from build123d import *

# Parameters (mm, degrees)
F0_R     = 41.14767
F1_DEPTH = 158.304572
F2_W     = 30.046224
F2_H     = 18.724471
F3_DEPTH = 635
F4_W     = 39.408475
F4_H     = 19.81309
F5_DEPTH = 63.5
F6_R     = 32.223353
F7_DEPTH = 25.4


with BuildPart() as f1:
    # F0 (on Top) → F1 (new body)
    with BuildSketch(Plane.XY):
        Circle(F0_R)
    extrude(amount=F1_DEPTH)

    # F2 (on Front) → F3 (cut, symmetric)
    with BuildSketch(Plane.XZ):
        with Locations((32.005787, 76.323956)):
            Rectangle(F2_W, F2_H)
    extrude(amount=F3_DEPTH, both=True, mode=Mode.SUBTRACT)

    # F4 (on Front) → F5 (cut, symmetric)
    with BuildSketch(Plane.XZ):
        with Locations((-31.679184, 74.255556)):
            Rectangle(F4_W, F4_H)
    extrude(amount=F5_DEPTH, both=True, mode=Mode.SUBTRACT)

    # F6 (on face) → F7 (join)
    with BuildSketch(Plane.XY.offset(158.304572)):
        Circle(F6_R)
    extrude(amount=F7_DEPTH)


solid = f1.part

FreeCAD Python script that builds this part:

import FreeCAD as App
import Part
import Sketcher

V = App.Vector

doc = App.newDocument("Part")
params = doc.addObject("Spreadsheet::Sheet", "Params")
for row, (alias, value) in enumerate([
    ("pad1_length", "158.304572 mm"),
    ("pocket1_length", "50 in"),
    ("pocket2_length", "5 in"),
    ("pad2_length", "1 in"),
], start=1):
    params.set(f"A{row}", alias)
    params.set(f"B{row}", "=" + value)
    params.setAlias(f"B{row}", alias)

body = doc.addObject("PartDesign::Body", "Body")

sketch1 = body.newObject("Sketcher::SketchObject", "Sketch")
sketch1.AttachmentSupport = (doc.getObject("XY_Plane"), [""])
sketch1.MapMode = "FlatFace"
sketch1.addGeometry(Part.Circle(V(0, 0, 0), V(0, 0, 1), 41.14767), False)
sketch1.addConstraint([
    Sketcher.Constraint("Coincident", 0, 3, -1, 1),
    Sketcher.Constraint("Diameter", 0, 82.29534),
])
pad1 = body.newObject("PartDesign::Pad", "Pad")
pad1.Profile = sketch1
pad1.setExpression("Length", "Params.pad1_length")

sketch2 = body.newObject("Sketcher::SketchObject", "Sketch001")
sketch2.AttachmentSupport = (doc.getObject("XZ_Plane"), [""])
sketch2.MapMode = "FlatFace"
sketch2.addGeometry([
    Part.LineSegment(V(16.982675, 85.686192, 0), V(16.982675, 66.96172, 0)),
    Part.LineSegment(V(16.982675, 66.96172, 0), V(47.028899, 66.96172, 0)),
    Part.LineSegment(V(47.028899, 66.96172, 0), V(47.028899, 85.686192, 0)),
    Part.LineSegment(V(47.028899, 85.686192, 0), V(16.982675, 85.686192, 0)),
], False)
sketch2.addConstraint([
    Sketcher.Constraint("Coincident", 0, 2, 1, 1),
    Sketcher.Constraint("Coincident", 1, 2, 2, 1),
    Sketcher.Constraint("Coincident", 2, 2, 3, 1),
    Sketcher.Constraint("Coincident", 3, 2, 0, 1),
    Sketcher.Constraint("Vertical", 0),
    Sketcher.Constraint("Horizontal", 1),
    Sketcher.Constraint("Vertical", 2),
    Sketcher.Constraint("Horizontal", 3),
    Sketcher.Constraint("DistanceY", 0, 2, 0, 1, 18.724471),
    Sketcher.Constraint("DistanceX", -1, 1, 1, 2, 47.028899),
    Sketcher.Constraint("DistanceX", 1, 1, 1, 2, 30.046224),
    Sketcher.Constraint("DistanceY", -1, 1, 0, 2, 66.96172),
])
pocket1 = body.newObject("PartDesign::Pocket", "Pocket")
pocket1.Profile = sketch2
pocket1.setExpression("Length", "Params.pocket1_length")
pocket1.Midplane = True

sketch3 = body.newObject("Sketcher::SketchObject", "Sketch002")
sketch3.AttachmentSupport = (doc.getObject("XZ_Plane"), [""])
sketch3.MapMode = "FlatFace"
sketch3.addGeometry([
    Part.LineSegment(V(-51.383421, 84.162101, 0), V(-51.383421, 64.349011, 0)),
    Part.LineSegment(V(-51.383421, 64.349011, 0), V(-11.974946, 64.349011, 0)),
    Part.LineSegment(V(-11.974946, 64.349011, 0), V(-11.974946, 84.162101, 0)),
    Part.LineSegment(V(-11.974946, 84.162101, 0), V(-51.383421, 84.162101, 0)),
], False)
sketch3.addConstraint([
    Sketcher.Constraint("Coincident", 0, 2, 1, 1),
    Sketcher.Constraint("Coincident", 1, 2, 2, 1),
    Sketcher.Constraint("Coincident", 2, 2, 3, 1),
    Sketcher.Constraint("Coincident", 3, 2, 0, 1),
    Sketcher.Constraint("Vertical", 0),
    Sketcher.Constraint("Horizontal", 1),
    Sketcher.Constraint("Vertical", 2),
    Sketcher.Constraint("Horizontal", 3),
    Sketcher.Constraint("DistanceY", 0, 2, 0, 1, 19.81309),
    Sketcher.Constraint("DistanceY", -1, 1, 2, 2, 84.162101),
    Sketcher.Constraint("DistanceX", 1, 1, 1, 2, 39.408475),
    Sketcher.Constraint("DistanceX", 0, 2, -1, 1, 51.383421),
])
pocket2 = body.newObject("PartDesign::Pocket", "Pocket001")
pocket2.Profile = sketch3
pocket2.setExpression("Length", "Params.pocket2_length")
pocket2.Midplane = True

sketch4 = body.newObject("Sketcher::SketchObject", "Sketch003")
sketch4.AttachmentSupport = (doc.getObject("XY_Plane"), [""])
sketch4.MapMode = "FlatFace"
sketch4.AttachmentOffset = App.Placement(V(0, 0, 158.304572), App.Rotation())
sketch4.addGeometry(Part.Circle(V(0, 0, 0), V(0, 0, 1), 32.223353), False)
sketch4.addConstraint([
    Sketcher.Constraint("Coincident", 0, 3, -1, 1),
    Sketcher.Constraint("Diameter", 0, 64.446706),
])
pad2 = body.newObject("PartDesign::Pad", "Pad001")
pad2.Profile = sketch4
pad2.setExpression("Length", "Params.pad2_length")

doc.recompute()
